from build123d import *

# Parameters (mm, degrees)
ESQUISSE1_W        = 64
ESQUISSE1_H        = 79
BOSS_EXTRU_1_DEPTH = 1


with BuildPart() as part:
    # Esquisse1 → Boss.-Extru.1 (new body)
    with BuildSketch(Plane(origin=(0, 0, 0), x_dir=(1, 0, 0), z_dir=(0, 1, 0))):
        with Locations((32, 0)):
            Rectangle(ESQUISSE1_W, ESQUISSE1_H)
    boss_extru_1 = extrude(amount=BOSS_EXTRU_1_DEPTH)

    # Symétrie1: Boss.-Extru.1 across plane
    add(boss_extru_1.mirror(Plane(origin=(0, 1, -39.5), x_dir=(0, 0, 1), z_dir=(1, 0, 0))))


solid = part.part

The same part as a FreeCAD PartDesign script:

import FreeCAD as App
import Part
import Sketcher
from FreeCAD import Vector

doc = App.newDocument("Part")
body = doc.addObject("PartDesign::Body", "Body")

sketch1 = body.newObject("Sketcher::SketchObject", "Sketch")
sketch1.AttachmentSupport = (doc.getObject("XZ_Plane"), [""])
sketch1.MapMode = "FlatFace"
sketch1.addGeometry(Part.LineSegment(Vector(0, -40, 0), Vector(0, 40, 0)), False)
sketch1.addGeometry(Part.LineSegment(Vector(0, 40, 0), Vector(64, 40, 0)), False)
sketch1.addGeometry(Part.LineSegment(Vector(64, 40, 0), Vector(64, -40, 0)), False)
sketch1.addGeometry(Part.LineSegment(Vector(64, -40, 0), Vector(0, -40, 0)), False)
sketch1.addConstraint(Sketcher.Constraint("Coincident", 0, 2, 1, 1))
sketch1.addConstraint(Sketcher.Constraint("Coincident", 1, 2, 2, 1))
sketch1.addConstraint(Sketcher.Constraint("Coincident", 2, 2, 3, 1))
sketch1.addConstraint(Sketcher.Constraint("Coincident", 3, 2, 0, 1))
sketch1.addConstraint(Sketcher.Constraint("Vertical", 0))
sketch1.addConstraint(Sketcher.Constraint("Horizontal", 1))
sketch1.addConstraint(Sketcher.Constraint("Vertical", 2))
sketch1.addConstraint(Sketcher.Constraint("Horizontal", 3))
sketch1.addConstraint(Sketcher.Constraint("Symmetric", 0, 2, 3, 2, -1, 1))
sketch1.addConstraint(Sketcher.Constraint("DistanceX", 1, 1, 1, 2, 64.0))
sketch1.addConstraint(Sketcher.Constraint("DistanceY", 0, 1, 0, 2, 79.0))
pad1 = body.newObject("PartDesign::Pad", "Pad")
pad1.Profile = sketch1
pad1.Length = 1
pad1.Reversed = True
doc.recompute()

mirrored = body.newObject("PartDesign::Mirrored", "Mirrored")
mirrored.Originals = [pad1]
mirrored.MirrorPlane = (doc.getObject("YZ_Plane"), [""])
body.Tip = mirrored

doc.recompute()
